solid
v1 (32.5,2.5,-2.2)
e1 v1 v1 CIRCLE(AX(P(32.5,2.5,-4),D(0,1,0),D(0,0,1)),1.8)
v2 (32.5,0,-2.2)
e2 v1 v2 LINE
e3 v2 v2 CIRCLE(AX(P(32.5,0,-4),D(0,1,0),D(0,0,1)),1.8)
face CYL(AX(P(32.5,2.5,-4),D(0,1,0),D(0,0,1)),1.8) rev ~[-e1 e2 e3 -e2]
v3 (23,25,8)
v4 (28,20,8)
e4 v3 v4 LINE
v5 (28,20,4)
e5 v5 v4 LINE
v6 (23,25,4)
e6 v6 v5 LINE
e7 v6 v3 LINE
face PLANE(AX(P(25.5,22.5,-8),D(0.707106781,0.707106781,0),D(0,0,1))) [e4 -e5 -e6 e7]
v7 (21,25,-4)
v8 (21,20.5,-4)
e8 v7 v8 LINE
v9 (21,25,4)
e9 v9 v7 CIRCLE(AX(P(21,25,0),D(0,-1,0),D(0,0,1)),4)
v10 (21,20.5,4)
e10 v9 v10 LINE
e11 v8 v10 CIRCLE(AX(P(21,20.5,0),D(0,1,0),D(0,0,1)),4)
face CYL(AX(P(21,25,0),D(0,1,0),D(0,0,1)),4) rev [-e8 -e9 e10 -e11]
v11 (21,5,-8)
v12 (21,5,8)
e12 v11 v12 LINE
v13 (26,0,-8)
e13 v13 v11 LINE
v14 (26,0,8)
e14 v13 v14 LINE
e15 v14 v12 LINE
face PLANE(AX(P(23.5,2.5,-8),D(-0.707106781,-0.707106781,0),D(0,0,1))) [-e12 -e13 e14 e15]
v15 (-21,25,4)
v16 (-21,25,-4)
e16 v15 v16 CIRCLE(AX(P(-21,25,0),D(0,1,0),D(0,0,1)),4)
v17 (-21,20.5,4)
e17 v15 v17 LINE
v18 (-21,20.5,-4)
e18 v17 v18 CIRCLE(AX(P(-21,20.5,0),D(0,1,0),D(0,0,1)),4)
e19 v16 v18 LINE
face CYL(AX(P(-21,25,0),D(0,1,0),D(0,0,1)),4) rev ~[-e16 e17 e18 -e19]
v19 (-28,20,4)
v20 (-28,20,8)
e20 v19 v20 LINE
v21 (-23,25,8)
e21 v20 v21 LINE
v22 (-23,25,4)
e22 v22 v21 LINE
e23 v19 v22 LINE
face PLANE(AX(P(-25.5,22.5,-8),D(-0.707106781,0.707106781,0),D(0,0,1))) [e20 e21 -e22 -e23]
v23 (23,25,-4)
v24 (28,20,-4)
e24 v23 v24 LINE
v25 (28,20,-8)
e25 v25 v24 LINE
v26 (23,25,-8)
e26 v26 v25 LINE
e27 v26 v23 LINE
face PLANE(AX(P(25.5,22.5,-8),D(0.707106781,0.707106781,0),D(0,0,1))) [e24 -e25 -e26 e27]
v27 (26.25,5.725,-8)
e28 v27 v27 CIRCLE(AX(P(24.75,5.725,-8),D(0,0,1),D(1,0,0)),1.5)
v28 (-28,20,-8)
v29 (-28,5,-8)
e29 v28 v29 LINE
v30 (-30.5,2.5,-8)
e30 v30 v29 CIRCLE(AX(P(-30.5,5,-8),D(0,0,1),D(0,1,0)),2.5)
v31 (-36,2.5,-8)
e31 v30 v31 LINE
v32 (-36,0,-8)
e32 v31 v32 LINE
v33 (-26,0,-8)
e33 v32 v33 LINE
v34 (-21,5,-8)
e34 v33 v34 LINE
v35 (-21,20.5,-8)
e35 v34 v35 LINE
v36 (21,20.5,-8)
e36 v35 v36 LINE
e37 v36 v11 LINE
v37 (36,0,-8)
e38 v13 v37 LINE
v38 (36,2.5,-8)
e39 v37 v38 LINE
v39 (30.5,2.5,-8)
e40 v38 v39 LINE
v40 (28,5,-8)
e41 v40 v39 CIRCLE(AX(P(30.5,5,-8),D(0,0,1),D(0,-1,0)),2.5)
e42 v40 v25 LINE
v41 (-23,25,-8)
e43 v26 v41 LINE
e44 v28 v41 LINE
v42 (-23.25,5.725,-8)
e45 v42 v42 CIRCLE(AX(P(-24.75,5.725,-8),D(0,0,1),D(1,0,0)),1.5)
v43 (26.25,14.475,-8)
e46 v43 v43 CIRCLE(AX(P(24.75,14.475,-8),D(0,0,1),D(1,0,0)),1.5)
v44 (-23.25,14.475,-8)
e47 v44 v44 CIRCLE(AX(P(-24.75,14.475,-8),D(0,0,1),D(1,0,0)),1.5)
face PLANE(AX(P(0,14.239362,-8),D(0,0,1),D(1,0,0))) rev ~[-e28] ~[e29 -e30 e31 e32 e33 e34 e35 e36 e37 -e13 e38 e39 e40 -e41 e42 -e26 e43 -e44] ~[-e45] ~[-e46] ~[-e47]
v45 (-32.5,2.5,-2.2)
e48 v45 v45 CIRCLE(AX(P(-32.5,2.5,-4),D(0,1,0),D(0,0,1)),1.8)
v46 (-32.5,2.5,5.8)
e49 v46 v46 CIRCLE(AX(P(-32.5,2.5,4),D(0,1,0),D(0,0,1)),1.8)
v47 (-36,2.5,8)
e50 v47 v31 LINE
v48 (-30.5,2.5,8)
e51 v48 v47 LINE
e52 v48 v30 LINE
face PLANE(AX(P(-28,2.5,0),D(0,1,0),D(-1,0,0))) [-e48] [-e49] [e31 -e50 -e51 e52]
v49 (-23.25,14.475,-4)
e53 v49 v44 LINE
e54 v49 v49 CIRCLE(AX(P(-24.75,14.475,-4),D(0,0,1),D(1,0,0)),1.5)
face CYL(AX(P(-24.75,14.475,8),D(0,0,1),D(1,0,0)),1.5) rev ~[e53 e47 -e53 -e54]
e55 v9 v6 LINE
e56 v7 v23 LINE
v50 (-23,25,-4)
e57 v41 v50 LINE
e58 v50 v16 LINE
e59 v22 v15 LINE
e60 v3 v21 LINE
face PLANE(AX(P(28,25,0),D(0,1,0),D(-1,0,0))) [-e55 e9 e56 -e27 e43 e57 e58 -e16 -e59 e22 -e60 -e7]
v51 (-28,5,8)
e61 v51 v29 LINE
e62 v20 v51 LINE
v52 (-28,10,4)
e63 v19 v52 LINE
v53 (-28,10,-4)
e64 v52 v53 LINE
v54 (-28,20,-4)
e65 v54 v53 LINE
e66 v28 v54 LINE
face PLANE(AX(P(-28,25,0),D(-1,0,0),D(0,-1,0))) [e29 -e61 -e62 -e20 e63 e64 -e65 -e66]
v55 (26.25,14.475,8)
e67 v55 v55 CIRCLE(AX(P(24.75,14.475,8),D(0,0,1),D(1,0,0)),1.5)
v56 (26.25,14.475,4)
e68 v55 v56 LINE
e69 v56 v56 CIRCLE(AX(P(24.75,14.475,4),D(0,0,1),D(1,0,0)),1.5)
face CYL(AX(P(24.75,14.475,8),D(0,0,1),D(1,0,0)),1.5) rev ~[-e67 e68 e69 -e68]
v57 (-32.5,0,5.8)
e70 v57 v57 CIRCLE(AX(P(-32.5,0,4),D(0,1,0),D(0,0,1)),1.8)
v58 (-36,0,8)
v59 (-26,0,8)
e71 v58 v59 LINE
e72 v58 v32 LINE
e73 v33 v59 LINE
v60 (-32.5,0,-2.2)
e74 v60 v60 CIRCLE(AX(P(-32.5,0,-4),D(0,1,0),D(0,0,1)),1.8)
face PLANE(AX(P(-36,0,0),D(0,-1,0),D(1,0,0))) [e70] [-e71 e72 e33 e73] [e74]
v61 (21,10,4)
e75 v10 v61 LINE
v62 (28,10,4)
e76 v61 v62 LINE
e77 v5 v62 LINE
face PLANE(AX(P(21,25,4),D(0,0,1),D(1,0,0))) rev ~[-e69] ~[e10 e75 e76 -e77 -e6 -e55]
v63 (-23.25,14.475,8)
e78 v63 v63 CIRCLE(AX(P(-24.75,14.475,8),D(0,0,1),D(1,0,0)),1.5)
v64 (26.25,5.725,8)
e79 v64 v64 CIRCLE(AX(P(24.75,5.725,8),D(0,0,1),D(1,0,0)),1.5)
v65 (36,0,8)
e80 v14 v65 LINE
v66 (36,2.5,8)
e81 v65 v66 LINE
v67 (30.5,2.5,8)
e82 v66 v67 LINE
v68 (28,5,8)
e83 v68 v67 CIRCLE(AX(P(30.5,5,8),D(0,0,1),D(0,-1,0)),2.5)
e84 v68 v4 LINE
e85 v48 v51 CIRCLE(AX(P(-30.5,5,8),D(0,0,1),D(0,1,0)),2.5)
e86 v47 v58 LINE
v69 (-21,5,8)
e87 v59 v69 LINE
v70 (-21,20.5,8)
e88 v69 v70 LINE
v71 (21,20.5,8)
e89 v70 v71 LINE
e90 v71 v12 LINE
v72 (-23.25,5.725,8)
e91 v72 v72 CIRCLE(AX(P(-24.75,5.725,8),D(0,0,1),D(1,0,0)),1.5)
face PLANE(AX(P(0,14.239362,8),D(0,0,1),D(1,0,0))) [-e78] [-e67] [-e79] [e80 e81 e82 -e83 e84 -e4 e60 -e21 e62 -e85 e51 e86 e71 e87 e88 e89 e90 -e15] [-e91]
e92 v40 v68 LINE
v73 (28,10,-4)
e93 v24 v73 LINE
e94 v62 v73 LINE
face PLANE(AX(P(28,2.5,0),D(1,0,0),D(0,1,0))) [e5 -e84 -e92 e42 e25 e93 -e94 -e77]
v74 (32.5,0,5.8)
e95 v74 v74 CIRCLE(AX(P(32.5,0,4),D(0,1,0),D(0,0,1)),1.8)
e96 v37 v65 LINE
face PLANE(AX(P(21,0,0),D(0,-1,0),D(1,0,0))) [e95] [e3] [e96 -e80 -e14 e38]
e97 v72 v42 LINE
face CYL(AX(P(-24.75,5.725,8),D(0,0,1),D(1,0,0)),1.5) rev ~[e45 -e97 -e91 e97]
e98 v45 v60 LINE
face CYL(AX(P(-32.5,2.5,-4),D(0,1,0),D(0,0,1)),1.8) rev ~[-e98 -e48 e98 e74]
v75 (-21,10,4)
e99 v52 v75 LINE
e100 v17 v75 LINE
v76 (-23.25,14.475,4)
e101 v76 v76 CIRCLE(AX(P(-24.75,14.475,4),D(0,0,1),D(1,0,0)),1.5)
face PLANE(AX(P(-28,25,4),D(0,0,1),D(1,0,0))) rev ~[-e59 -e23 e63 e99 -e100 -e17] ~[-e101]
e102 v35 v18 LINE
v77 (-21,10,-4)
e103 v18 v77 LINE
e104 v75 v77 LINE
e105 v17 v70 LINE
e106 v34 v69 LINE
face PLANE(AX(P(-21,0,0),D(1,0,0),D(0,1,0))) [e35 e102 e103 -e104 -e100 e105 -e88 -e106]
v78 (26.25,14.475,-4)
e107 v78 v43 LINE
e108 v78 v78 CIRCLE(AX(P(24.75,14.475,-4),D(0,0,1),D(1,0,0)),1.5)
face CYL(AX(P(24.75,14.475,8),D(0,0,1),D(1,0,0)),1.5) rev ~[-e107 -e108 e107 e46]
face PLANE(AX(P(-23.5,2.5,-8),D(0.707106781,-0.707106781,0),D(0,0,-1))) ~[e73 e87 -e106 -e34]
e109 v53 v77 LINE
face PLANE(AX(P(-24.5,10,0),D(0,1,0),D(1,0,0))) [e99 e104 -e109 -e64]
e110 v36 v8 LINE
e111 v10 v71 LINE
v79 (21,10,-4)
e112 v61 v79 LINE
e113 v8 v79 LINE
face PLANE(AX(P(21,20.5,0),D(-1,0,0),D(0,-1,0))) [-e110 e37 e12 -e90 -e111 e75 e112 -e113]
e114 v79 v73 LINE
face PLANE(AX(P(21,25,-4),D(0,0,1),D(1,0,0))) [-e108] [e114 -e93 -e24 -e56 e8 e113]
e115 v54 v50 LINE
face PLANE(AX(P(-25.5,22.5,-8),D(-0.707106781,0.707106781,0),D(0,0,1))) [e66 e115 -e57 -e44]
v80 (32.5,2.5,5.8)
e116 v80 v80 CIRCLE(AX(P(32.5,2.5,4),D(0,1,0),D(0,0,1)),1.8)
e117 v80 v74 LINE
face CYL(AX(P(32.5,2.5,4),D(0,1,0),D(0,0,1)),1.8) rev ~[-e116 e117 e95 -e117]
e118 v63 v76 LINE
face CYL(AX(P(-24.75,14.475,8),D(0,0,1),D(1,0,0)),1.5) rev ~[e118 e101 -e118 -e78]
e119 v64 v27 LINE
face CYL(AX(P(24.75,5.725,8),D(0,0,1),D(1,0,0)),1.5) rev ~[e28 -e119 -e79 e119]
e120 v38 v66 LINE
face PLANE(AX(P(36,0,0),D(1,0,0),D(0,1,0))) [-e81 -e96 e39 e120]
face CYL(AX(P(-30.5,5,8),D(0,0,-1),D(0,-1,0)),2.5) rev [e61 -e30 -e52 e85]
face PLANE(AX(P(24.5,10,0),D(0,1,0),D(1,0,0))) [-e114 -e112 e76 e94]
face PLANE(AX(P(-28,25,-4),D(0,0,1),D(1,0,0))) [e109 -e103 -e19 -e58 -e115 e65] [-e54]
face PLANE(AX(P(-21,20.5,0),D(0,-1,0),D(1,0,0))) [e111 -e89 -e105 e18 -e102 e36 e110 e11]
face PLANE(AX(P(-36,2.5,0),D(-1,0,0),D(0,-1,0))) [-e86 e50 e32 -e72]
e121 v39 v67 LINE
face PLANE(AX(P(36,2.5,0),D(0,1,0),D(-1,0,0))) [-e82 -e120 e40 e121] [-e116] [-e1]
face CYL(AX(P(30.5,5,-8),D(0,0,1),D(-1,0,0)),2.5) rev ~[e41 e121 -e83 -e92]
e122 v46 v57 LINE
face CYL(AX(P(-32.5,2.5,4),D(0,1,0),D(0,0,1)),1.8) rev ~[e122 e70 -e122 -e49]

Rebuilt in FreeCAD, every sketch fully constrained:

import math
import FreeCAD as App
import Part
import Sketcher

V = App.Vector


def edges_at(feature, points):
    """Names of the edges that pass closest to the given points."""
    edges = feature.Shape.Edges
    near = lambda p: min(range(len(edges)), key=lambda i: edges[i].distToShape(Part.Vertex(*p))[0])
    return sorted({f"Edge{near(p) + 1}" for p in points})


def add_polygon(sketch, points):
    """Adds a closed chain of lines whose ends are joined by coincident constraints."""
    first, n = sketch.GeometryCount, len(points)
    for a, b in zip(points, points[1:] + points[:1]):
        sketch.addGeometry(Part.LineSegment(App.Vector(*a, 0), App.Vector(*b, 0)), False)
    for i in range(n):
        sketch.addConstraint(Sketcher.Constraint("Coincident", first + i, 2, first + (i + 1) % n, 1))

doc = App.newDocument("Part")
body = doc.addObject("PartDesign::Body", "Body")

sketch1 = doc.addObject("Sketcher::SketchObject", "Sketch")
body.addObject(sketch1)
sketch1.AttachmentSupport = (doc.XY_Plane, [""])
sketch1.MapMode = "FlatFace"
add_polygon(sketch1, [(-36, 0), (-21, 0), (-21, 20.5), (21, 20.5), (21, 0), (36, 0), (36, 2.5), (28, 2.5), (28, 25), (-28, 25), (-28, 2.5), (-36, 2.5)])
sketch1.addConstraint(Sketcher.Constraint("Horizontal", 0))
sketch1.addConstraint(Sketcher.Constraint("Vertical", 1))
sketch1.addConstraint(Sketcher.Constraint("Horizontal", 2))
sketch1.addConstraint(Sketcher.Constraint("Vertical", 3))
sketch1.addConstraint(Sketcher.Constraint("Horizontal", 4))
sketch1.addConstraint(Sketcher.Constraint("Vertical", 5))
sketch1.addConstraint(Sketcher.Constraint("Horizontal", 6))
sketch1.addConstraint(Sketcher.Constraint("Vertical", 7))
sketch1.addConstraint(Sketcher.Constraint("Horizontal", 8))
sketch1.addConstraint(Sketcher.Constraint("Vertical", 9))
sketch1.addConstraint(Sketcher.Constraint("Horizontal", 10))
sketch1.addConstraint(Sketcher.Constraint("Vertical", 11))
sketch1.addConstraint(Sketcher.Constraint("Symmetric", 0, 2, 3, 2, -1, 1))
sketch1.addConstraint(Sketcher.Constraint("Symmetric", 6, 2, 9, 2, -2))
sketch1.addConstraint(Sketcher.Constraint("Symmetric", 4, 2, 11, 2, -2))
sketch1.addConstraint(Sketcher.Constraint("DistanceX", 0, 1, 0, 2, 15.0))
sketch1.addConstraint(Sketcher.Constraint("DistanceX", 2, 1, 2, 2, 42.0))
sketch1.addConstraint(Sketcher.Constraint("DistanceX", 6, 2, 6, 1, 8.0))
sketch1.addConstraint(Sketcher.Constraint("DistanceY", 1, 1, 1, 2, 20.5))
sketch1.addConstraint(Sketcher.Constraint("DistanceY", 5, 1, 5, 2, 2.5))
sketch1.addConstraint(Sketcher.Constraint("DistanceY", 7, 1, 7, 2, 22.5))
pad1 = doc.addObject("PartDesign::Pad", "Pad")
body.addObject(pad1)
pad1.Profile = sketch1
pad1.Length = 16
pad1.Midplane = True
doc.recompute()

chamfer = doc.addObject("PartDesign::Chamfer", "Chamfer")
body.addObject(chamfer)
chamfer.Base = (pad1, edges_at(pad1, [
    (-28, 25, 0),
    (28, 25, 0),
    (21, 0, 0),
    (-21, 0, 0),
]))
chamfer.Size = 5
doc.recompute()

fillet = doc.addObject("PartDesign::Fillet", "Fillet")
body.addObject(fillet)
fillet.Base = (chamfer, edges_at(chamfer, [(-28, 2.5, 0), (28, 2.5, 0)]))
fillet.Radius = 2.5

sketch2 = doc.addObject("Sketcher::SketchObject", "Sketch001")
body.addObject(sketch2)
sketch2.AttachmentSupport = (doc.XY_Plane, [""])
sketch2.MapMode = "FlatFace"
sketch2.AttachmentOffset = App.Placement(V(0, 0, 8), App.Rotation())
sketch2.addGeometry(Part.Circle(V(-24.8, 14.5, 0), V(0, 0, 1), 1.5), False)
sketch2.addGeometry(Part.Circle(V(-24.8, 5.7, 0), V(0, 0, 1), 1.5), False)
sketch2.addGeometry(Part.Circle(V(24.8, 14.5, 0), V(0, 0, 1), 1.5), False)
sketch2.addGeometry(Part.Circle(V(24.8, 5.7, 0), V(0, 0, 1), 1.5), False)
sketch2.addConstraint(Sketcher.Constraint("Equal", 0, 1))
sketch2.addConstraint(Sketcher.Constraint("Equal", 1, 2))
sketch2.addConstraint(Sketcher.Constraint("Equal", 2, 3))
sketch2.addConstraint(Sketcher.Constraint("Symmetric", 0, 3, 2, 3, -2))
sketch2.addConstraint(Sketcher.Constraint("Symmetric", 1, 3, 3, 3, -2))
sketch2.addConstraint(Sketcher.Constraint("Vertical", 0, 3, 1, 3))
sketch2.addConstraint(Sketcher.Constraint("Diameter", 0, 3.0))
sketch2.addConstraint(Sketcher.Constraint("DistanceX", 0, 3, 2, 3, 49.5))
sketch2.addConstraint(Sketcher.Constraint("DistanceY", 1, 3, 0, 3, 8.75))
sketch2.addConstraint(Sketcher.Constraint("DistanceY", -1, 1, 0, 3, 14.475))
pocket1 = doc.addObject("PartDesign::Pocket", "Pocket")
body.addObject(pocket1)
pocket1.Profile = sketch2
pocket1.Type = "ThroughAll"

sketch3 = doc.addObject("Sketcher::SketchObject", "Sketch002")
body.addObject(sketch3)
sketch3.AttachmentSupport = (doc.XZ_Plane, [""])
sketch3.MapMode = "FlatFace"
sketch3.AttachmentOffset = App.Placement(V(0, 0, -2.5), App.Rotation())
sketch3.addGeometry(Part.Circle(V(32.5, -4, 0), V(0, 0, 1), 1.8), False)
sketch3.addGeometry(Part.Circle(V(32.5, 4, 0), V(0, 0, 1), 1.8), False)
sketch3.addGeometry(Part.Circle(V(-32.5, -4, 0), V(0, 0, 1), 1.8), False)
sketch3.addGeometry(Part.Circle(V(-32.5, 4, 0), V(0, 0, 1), 1.8), False)
sketch3.addConstraint(Sketcher.Constraint("Equal", 0, 1))
sketch3.addConstraint(Sketcher.Constraint("Equal", 1, 2))
sketch3.addConstraint(Sketcher.Constraint("Equal", 2, 3))
sketch3.addConstraint(Sketcher.Constraint("Symmetric", 1, 3, 2, 3, -1, 1))
sketch3.addConstraint(Sketcher.Constraint("Symmetric", 0, 3, 3, 3, -1, 1))
sketch3.addConstraint(Sketcher.Constraint("Symmetric", 0, 3, 2, 3, -2))
sketch3.addConstraint(Sketcher.Constraint("Diameter", 0, 3.6))
sketch3.addConstraint(Sketcher.Constraint("DistanceY", 0, 3, -1, 1, 4.0))
sketch3.addConstraint(Sketcher.Constraint("DistanceX", 2, 3, 0, 3, 65.0))
pocket2 = doc.addObject("PartDesign::Pocket", "Pocket001")
body.addObject(pocket2)
pocket2.Profile = sketch3
pocket2.Type = "ThroughAll"
pocket2.Reversed = True

sketch4 = doc.addObject("Sketcher::SketchObject", "Sketch003")
body.addObject(sketch4)
sketch4.AttachmentSupport = (doc.XZ_Plane, [""])
sketch4.MapMode = "FlatFace"
sketch4.AttachmentOffset = App.Placement(V(0, 0, -25), App.Rotation())
add_polygon(sketch4, [(21, -4), (21, 4), (28, 4), (28, -4)])
add_polygon(sketch4, [(-28, -4), (-28, 4), (-21, 4), (-21, -4)])
sketch4.addConstraint(Sketcher.Constraint("Vertical", 0))
sketch4.addConstraint(Sketcher.Constraint("Horizontal", 1))
sketch4.addConstraint(Sketcher.Constraint("Vertical", 2))
sketch4.addConstraint(Sketcher.Constraint("Horizontal", 3))
sketch4.addConstraint(Sketcher.Constraint("Vertical", 4))
sketch4.addConstraint(Sketcher.Constraint("Horizontal", 5))
sketch4.addConstraint(Sketcher.Constraint("Vertical", 6))
sketch4.addConstraint(Sketcher.Constraint("Horizontal", 7))
sketch4.addConstraint(Sketcher.Constraint("Symmetric", 2, 2, 4, 2, -1, 1))
sketch4.addConstraint(Sketcher.Constraint("Symmetric", 0, 2, 6, 2, -1, 1))
sketch4.addConstraint(Sketcher.Constraint("Horizontal", 1, 2, 4, 2))
sketch4.addConstraint(Sketcher.Constraint("DistanceX", 1, 1, 1, 2, 7.0))
sketch4.addConstraint(Sketcher.Constraint("DistanceY", 0, 1, 0, 2, 8.0))
sketch4.addConstraint(Sketcher.Constraint("DistanceX", -1, 1, 0, 2, 21.0))
pocket3 = doc.addObject("PartDesign::Pocket", "Pocket002")
body.addObject(pocket3)
pocket3.Profile = sketch4
pocket3.Length = 15
pocket3.Reversed = True

sketch5 = doc.addObject("Sketcher::SketchObject", "Sketch004")
body.addObject(sketch5)
sketch5.AttachmentSupport = (doc.XZ_Plane, [""])
sketch5.MapMode = "FlatFace"
sketch5.AttachmentOffset = App.Placement(V(0, 0, -25), App.Rotation())
sketch5.addGeometry(Part.LineSegment(V(21, 4, 0), V(21, -4, 0)), False)
sketch5.addGeometry(Part.ArcOfCircle(Part.Circle(V(21, 0, 0), V(0, 0, 1), 4), math.radians(90), math.radians(270)), False)
sketch5.addGeometry(Part.LineSegment(V(-21, -4, 0), V(-21, 4, 0)), False)
sketch5.addGeometry(Part.ArcOfCircle(Part.Circle(V(-21, 0, 0), V(0, 0, 1), 4), math.radians(-90), math.radians(90)), False)
sketch5.addConstraint(Sketcher.Constraint("Coincident", 0, 1, 1, 1))
sketch5.addConstraint(Sketcher.Constraint("Coincident", 1, 2, 0, 2))
sketch5.addConstraint(Sketcher.Constraint("Coincident", 2, 1, 3, 1))
sketch5.addConstraint(Sketcher.Constraint("Coincident", 3, 2, 2, 2))
sketch5.addConstraint(Sketcher.Constraint("Vertical", 0))
sketch5.addConstraint(Sketcher.Constraint("Vertical", 2))
sketch5.addConstraint(Sketcher.Constraint("Equal", 1, 3))
sketch5.addConstraint(Sketcher.Constraint("Symmetric", 1, 3, 3, 3, -1, 1))
sketch5.addConstraint(Sketcher.Constraint("Symmetric", 1, 2, 2, 1, -2))
sketch5.addConstraint(Sketcher.Constraint("Vertical", 1, 3, 0, 1))
sketch5.addConstraint(Sketcher.Constraint("Radius", 1, 4.0))
sketch5.addConstraint(Sketcher.Constraint("DistanceX", -1, 1, 1, 3, 21.0))
pocket4 = doc.addObject("PartDesign::Pocket", "Pocket003")
body.addObject(pocket4)
pocket4.Profile = sketch5
pocket4.Length = 15
pocket4.Reversed = True

doc.recompute()
